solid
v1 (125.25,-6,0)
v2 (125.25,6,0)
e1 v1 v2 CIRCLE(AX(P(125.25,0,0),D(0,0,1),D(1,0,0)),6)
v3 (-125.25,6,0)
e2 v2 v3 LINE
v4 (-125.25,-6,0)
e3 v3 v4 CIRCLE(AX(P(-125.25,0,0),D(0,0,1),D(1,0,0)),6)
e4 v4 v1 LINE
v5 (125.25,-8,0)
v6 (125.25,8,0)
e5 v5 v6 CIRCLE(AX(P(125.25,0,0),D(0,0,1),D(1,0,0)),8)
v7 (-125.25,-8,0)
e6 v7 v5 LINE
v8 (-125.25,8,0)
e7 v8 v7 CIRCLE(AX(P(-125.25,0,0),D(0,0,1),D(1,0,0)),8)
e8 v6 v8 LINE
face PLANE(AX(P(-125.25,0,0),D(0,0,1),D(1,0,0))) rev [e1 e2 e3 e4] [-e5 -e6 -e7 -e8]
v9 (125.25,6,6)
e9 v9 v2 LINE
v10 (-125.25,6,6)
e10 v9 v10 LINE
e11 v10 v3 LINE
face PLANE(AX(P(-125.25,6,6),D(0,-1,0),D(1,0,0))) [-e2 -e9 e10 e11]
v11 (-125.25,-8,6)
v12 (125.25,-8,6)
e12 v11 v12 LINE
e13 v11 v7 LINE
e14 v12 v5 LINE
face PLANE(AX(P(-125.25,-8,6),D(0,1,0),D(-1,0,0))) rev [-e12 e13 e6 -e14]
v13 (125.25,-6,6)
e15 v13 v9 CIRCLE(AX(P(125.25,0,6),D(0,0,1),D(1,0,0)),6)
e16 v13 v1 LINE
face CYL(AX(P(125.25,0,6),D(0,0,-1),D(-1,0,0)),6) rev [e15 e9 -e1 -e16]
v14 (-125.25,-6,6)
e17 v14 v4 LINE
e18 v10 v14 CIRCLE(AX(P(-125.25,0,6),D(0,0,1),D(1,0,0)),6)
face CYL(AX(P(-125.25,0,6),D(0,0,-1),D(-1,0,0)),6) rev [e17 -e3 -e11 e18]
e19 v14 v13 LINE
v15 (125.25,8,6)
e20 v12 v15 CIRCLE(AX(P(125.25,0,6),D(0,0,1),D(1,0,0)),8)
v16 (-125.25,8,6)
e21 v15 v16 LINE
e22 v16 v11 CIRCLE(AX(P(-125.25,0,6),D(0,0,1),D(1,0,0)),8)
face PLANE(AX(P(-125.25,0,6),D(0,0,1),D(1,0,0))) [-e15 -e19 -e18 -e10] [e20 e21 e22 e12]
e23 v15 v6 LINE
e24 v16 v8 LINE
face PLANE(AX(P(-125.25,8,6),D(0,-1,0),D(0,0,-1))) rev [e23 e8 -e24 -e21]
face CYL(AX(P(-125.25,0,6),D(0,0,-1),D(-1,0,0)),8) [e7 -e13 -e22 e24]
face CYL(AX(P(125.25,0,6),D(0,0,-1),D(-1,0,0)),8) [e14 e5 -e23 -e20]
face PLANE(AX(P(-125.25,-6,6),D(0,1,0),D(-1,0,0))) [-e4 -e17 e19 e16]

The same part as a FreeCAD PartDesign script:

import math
import FreeCAD as App
import Part
import Sketcher
from FreeCAD import Vector
Q = App.Units.Quantity

doc = App.newDocument("Part")
body = doc.addObject("PartDesign::Body", "Body")

sketch1 = body.newObject("Sketcher::SketchObject", "Sketch")
sketch1.AttachmentSupport = (doc.getObject("XY_Plane"), [""])
sketch1.MapMode = "FlatFace"
sketch1.addGeometry(Part.LineSegment(Vector(125, 8, 0), Vector(-125, 8, 0)), False)
sketch1.addGeometry(Part.ArcOfCircle(Part.Circle(Vector(-125, 0, 0), Vector(0, 0, 1), 8), math.radians(90), math.radians(270)), False)
sketch1.addGeometry(Part.LineSegment(Vector(-125, -8, 0), Vector(125, -8, 0)), False)
sketch1.addGeometry(Part.ArcOfCircle(Part.Circle(Vector(125, 0, 0), Vector(0, 0, 1), 8), math.radians(-90), math.radians(90)), False)
sketch1.addGeometry(Part.LineSegment(Vector(-125, 6, 0), Vector(125, 6, 0)), False)
sketch1.addGeometry(Part.ArcOfCircle(Part.Circle(Vector(125, 0, 0), Vector(0, 0, 1), 6), math.radians(-90), math.radians(90)), False)
sketch1.addGeometry(Part.LineSegment(Vector(125, -6, 0), Vector(-125, -6, 0)), False)
sketch1.addGeometry(Part.ArcOfCircle(Part.Circle(Vector(-125, 0, 0), Vector(0, 0, 1), 6), math.radians(90), math.radians(270)), False)
sketch1.addConstraint(Sketcher.Constraint("Tangent", 0, 2, 1, 1))
sketch1.addConstraint(Sketcher.Constraint("Tangent", 1, 2, 2, 1))
sketch1.addConstraint(Sketcher.Constraint("Tangent", 2, 2, 3, 1))
sketch1.addConstraint(Sketcher.Constraint("Tangent", 3, 2, 0, 1))
sketch1.addConstraint(Sketcher.Constraint("Tangent", 4, 2, 5, 2))
sketch1.addConstraint(Sketcher.Constraint("Tangent", 5, 1, 6, 1))
sketch1.addConstraint(Sketcher.Constraint("Tangent", 6, 2, 7, 2))
sketch1.addConstraint(Sketcher.Constraint("Tangent", 7, 1, 4, 1))
sketch1.addConstraint(Sketcher.Constraint("Horizontal", 0))
sketch1.addConstraint(Sketcher.Constraint("Horizontal", 2))
sketch1.addConstraint(Sketcher.Constraint("Horizontal", 4))
sketch1.addConstraint(Sketcher.Constraint("Horizontal", 6))
sketch1.addConstraint(Sketcher.Constraint("Coincident", 5, 3, 3, 3))
sketch1.addConstraint(Sketcher.Constraint("Symmetric", 1, 3, 3, 3, -1, 1))
sketch1.addConstraint(Sketcher.Constraint("Vertical", 7, 3, 0, 2))
sketch1.addConstraint(Sketcher.Constraint("Radius", 1, Q("8 mm")))
sketch1.addConstraint(Sketcher.Constraint("Radius", 5, Q("6 mm")))
sketch1.addConstraint(Sketcher.Constraint("DistanceX", 0, 2, 0, 1, Q("250.5 mm")))
pad1 = body.newObject("PartDesign::Pad", "Pad")
pad1.Profile = sketch1
pad1.Length = 6

doc.recompute()
